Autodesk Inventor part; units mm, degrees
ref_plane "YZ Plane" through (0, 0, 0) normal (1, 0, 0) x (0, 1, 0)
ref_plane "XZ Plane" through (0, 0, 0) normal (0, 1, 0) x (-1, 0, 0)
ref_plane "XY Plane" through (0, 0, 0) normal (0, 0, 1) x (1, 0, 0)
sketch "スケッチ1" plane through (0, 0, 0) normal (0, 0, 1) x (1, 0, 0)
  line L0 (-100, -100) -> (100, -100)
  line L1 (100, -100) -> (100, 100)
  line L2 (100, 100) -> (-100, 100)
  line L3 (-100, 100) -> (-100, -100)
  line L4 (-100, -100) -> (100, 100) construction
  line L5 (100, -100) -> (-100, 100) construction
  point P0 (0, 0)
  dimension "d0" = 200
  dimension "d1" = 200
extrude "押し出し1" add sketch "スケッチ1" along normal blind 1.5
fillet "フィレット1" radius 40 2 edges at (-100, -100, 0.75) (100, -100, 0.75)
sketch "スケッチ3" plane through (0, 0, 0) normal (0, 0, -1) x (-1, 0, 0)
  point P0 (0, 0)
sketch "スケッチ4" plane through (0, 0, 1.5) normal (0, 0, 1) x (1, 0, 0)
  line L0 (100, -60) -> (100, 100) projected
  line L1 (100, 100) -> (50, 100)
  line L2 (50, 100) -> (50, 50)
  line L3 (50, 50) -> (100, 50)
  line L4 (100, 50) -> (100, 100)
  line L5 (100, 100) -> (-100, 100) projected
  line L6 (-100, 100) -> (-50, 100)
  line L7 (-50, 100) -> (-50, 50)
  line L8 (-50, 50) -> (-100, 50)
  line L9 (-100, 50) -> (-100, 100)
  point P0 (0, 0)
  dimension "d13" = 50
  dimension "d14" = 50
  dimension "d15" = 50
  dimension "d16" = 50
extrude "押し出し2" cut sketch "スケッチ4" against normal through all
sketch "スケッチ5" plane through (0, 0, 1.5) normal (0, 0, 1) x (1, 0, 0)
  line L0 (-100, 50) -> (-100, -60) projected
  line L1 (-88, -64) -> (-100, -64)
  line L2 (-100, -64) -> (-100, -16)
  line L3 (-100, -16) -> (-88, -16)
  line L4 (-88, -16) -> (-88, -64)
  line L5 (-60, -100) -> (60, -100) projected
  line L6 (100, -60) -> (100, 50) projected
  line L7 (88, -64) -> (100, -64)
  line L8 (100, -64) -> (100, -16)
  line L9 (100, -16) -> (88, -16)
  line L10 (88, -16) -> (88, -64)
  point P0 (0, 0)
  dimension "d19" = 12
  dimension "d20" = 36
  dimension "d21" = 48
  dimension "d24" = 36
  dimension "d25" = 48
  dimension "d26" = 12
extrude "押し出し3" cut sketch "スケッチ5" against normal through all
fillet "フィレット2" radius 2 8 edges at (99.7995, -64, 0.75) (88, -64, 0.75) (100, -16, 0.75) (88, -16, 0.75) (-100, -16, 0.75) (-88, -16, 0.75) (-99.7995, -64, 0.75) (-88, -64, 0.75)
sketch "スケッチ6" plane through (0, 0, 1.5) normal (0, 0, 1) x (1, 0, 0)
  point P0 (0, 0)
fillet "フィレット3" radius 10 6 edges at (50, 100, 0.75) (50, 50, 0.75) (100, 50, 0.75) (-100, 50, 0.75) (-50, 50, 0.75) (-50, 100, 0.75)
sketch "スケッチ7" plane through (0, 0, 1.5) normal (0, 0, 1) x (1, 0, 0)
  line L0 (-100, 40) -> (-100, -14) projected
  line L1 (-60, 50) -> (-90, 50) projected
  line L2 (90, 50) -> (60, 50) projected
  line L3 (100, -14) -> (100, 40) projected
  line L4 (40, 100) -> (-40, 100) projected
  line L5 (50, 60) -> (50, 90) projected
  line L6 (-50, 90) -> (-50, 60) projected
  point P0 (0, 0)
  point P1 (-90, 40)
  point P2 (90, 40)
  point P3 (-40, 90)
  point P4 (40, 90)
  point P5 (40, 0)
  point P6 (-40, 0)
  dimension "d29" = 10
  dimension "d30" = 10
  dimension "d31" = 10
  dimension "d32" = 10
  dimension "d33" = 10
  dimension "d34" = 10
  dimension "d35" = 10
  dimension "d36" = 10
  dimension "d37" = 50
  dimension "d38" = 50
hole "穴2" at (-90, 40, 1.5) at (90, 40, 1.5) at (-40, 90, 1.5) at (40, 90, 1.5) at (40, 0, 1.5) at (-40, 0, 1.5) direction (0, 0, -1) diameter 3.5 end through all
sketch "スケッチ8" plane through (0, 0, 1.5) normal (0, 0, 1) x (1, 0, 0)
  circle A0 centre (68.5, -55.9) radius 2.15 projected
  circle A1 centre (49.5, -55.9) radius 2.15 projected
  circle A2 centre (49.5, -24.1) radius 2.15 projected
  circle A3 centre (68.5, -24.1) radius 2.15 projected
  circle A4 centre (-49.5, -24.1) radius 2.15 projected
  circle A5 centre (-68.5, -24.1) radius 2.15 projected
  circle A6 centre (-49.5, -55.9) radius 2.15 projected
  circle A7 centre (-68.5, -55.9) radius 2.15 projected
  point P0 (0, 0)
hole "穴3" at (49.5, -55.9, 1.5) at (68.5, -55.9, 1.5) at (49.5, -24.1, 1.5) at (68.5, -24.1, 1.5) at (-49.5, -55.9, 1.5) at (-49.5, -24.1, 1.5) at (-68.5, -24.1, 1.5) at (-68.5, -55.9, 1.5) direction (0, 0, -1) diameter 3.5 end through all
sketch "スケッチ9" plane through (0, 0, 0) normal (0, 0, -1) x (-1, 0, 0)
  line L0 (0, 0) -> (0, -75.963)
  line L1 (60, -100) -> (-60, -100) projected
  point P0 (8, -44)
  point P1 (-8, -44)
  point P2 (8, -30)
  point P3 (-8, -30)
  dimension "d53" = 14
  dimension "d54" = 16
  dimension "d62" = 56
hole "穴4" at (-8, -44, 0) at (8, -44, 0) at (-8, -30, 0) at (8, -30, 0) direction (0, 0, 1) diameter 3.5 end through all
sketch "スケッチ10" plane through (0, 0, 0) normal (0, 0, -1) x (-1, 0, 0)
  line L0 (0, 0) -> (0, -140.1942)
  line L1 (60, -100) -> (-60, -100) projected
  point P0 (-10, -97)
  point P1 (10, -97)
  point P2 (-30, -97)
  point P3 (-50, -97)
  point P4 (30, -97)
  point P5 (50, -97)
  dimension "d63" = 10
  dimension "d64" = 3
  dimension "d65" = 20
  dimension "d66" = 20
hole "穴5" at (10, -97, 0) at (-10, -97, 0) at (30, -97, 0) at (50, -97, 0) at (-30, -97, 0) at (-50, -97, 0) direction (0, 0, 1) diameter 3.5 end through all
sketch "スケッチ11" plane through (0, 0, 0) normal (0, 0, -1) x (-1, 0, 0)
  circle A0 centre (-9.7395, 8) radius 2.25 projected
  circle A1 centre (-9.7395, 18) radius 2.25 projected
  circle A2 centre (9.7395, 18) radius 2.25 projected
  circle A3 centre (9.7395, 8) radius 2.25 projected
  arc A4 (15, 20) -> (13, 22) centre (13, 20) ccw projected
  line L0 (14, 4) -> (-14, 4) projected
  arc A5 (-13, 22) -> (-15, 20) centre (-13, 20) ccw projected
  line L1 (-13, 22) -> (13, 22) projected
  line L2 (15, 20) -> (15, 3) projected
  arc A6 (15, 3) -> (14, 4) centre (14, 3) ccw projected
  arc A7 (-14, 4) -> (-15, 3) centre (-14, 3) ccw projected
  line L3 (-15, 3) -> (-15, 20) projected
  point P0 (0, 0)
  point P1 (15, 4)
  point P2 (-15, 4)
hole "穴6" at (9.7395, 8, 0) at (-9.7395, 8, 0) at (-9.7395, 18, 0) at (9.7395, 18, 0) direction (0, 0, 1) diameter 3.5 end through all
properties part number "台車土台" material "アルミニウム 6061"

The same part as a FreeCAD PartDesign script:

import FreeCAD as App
import Part
import Sketcher
Q = App.Units.Quantity


def edges_at(feature, points):
    """Names of the edges that pass closest to the given points."""
    edges = feature.Shape.Edges
    near = lambda p: min(range(len(edges)), key=lambda i: edges[i].distToShape(Part.Vertex(*p))[0])
    return sorted({f"Edge{near(p) + 1}" for p in points})

doc = App.newDocument("Part")
params = doc.addObject("Spreadsheet::Sheet", "Params")
for row, (alias, value) in enumerate([
    ("sketch1_width", "200 mm"),
    ("pad1_length", "1.5 mm"),
    ("fillet_radius", "40 mm"),
    ("sketch2_width", "50 mm"),
    ("sketch3_width", "12 mm"),
    ("sketch3_height", "48 mm"),
    ("fillet2_radius", "2 mm"),
    ("fillet3_radius", "10 mm"),
    ("sketch4_diameter", "3.5 mm"),
    ("hole_diameter", "3.5 mm"),
    ("sketch5_diameter", "3.5 mm"),
    ("hole2_diameter", "3.5 mm"),
    ("sketch6_diameter", "3.5 mm"),
    ("hole3_diameter", "3.5 mm"),
    ("sketch7_diameter", "3.5 mm"),
    ("hole4_diameter", "3.5 mm"),
    ("sketch8_diameter", "3.5 mm"),
    ("hole5_diameter", "3.5 mm"),
], start=1):
    params.set(f"A{row}", alias)
    params.set(f"B{row}", "=" + value)
    params.setAlias(f"B{row}", alias)

body = doc.addObject("PartDesign::Body", "Body")

# Sketch on XY plane
sketch1 = body.newObject("Sketcher::SketchObject", "Sketch")
sketch1.AttachmentSupport = (doc.getObject("XY_Plane"), [""])
sketch1.MapMode = "FlatFace"
sketch1.addGeometry(Part.LineSegment(App.Vector(-100, 100, 0), App.Vector(-100, -100, 0)), False)
sketch1.addGeometry(Part.LineSegment(App.Vector(-100, -100, 0), App.Vector(100, -100, 0)), False)
sketch1.addGeometry(Part.LineSegment(App.Vector(100, -100, 0), App.Vector(100, 100, 0)), False)
sketch1.addGeometry(Part.LineSegment(App.Vector(100, 100, 0), App.Vector(-100, 100, 0)), False)
sketch1.addConstraint(Sketcher.Constraint("Coincident", 0, 2, 1, 1))
sketch1.addConstraint(Sketcher.Constraint("Coincident", 1, 2, 2, 1))
sketch1.addConstraint(Sketcher.Constraint("Coincident", 2, 2, 3, 1))
sketch1.addConstraint(Sketcher.Constraint("Coincident", 3, 2, 0, 1))
sketch1.addConstraint(Sketcher.Constraint("Vertical", 0))
sketch1.addConstraint(Sketcher.Constraint("Horizontal", 1))
sketch1.addConstraint(Sketcher.Constraint("Vertical", 2))
sketch1.addConstraint(Sketcher.Constraint("Horizontal", 3))
sketch1.addConstraint(Sketcher.Constraint("Symmetric", 0, 2, 2, 2, -1, 1))
sketch1.addConstraint(Sketcher.Constraint("Equal", 3, 0))
sketch1.addConstraint(Sketcher.Constraint("DistanceX", 1, 1, 1, 2, Q("200 mm")))
sketch1.setExpression("Constraints[10]", "Params.sketch1_width")
pad1 = body.newObject("PartDesign::Pad", "Pad")
pad1.Profile = sketch1
pad1.setExpression("Length", "Params.pad1_length")
doc.recompute()

fillet = body.newObject("PartDesign::Fillet", "Fillet")
fillet.Base = (pad1, edges_at(pad1, [(-100, -100, 0.75), (100, -100, 0.75)]))
fillet.setExpression("Radius", "Params.fillet_radius")

# Sketch on XY plane
sketch2 = body.newObject("Sketcher::SketchObject", "Sketch001")
sketch2.AttachmentSupport = (doc.getObject("XY_Plane"), [""])
sketch2.MapMode = "FlatFace"
sketch2.AttachmentOffset = App.Placement(App.Vector(0, 0, 1.5), App.Rotation())
sketch2.addGeometry(Part.LineSegment(App.Vector(50, 50, 0), App.Vector(100, 50, 0)), False)
sketch2.addGeometry(Part.LineSegment(App.Vector(100, 50, 0), App.Vector(100, 100, 0)), False)
sketch2.addGeometry(Part.LineSegment(App.Vector(100, 100, 0), App.Vector(50, 100, 0)), False)
sketch2.addGeometry(Part.LineSegment(App.Vector(50, 100, 0), App.Vector(50, 50, 0)), False)
sketch2.addGeometry(Part.LineSegment(App.Vector(-50, 50, 0), App.Vector(-50, 100, 0)), False)
sketch2.addGeometry(Part.LineSegment(App.Vector(-50, 100, 0), App.Vector(-100, 100, 0)), False)
sketch2.addGeometry(Part.LineSegment(App.Vector(-100, 100, 0), App.Vector(-100, 50, 0)), False)
sketch2.addGeometry(Part.LineSegment(App.Vector(-100, 50, 0), App.Vector(-50, 50, 0)), False)
sketch2.addConstraint(Sketcher.Constraint("Coincident", 0, 2, 1, 1))
sketch2.addConstraint(Sketcher.Constraint("Coincident", 1, 2, 2, 1))
sketch2.addConstraint(Sketcher.Constraint("Coincident", 2, 2, 3, 1))
sketch2.addConstraint(Sketcher.Constraint("Coincident", 3, 2, 0, 1))
sketch2.addConstraint(Sketcher.Constraint("Coincident", 4, 2, 5, 1))
sketch2.addConstraint(Sketcher.Constraint("Coincident", 5, 2, 6, 1))
sketch2.addConstraint(Sketcher.Constraint("Coincident", 6, 2, 7, 1))
sketch2.addConstraint(Sketcher.Constraint("Coincident", 7, 2, 4, 1))
sketch2.addConstraint(Sketcher.Constraint("Horizontal", 0))
sketch2.addConstraint(Sketcher.Constraint("Vertical", 1))
sketch2.addConstraint(Sketcher.Constraint("Horizontal", 2))
sketch2.addConstraint(Sketcher.Constraint("Vertical", 3))
sketch2.addConstraint(Sketcher.Constraint("Vertical", 4))
sketch2.addConstraint(Sketcher.Constraint("Horizontal", 5))
sketch2.addConstraint(Sketcher.Constraint("Vertical", 6))
sketch2.addConstraint(Sketcher.Constraint("Horizontal", 7))
sketch2.addConstraint(Sketcher.Constraint("Symmetric", 2, 2, 4, 2, -2))
sketch2.addConstraint(Sketcher.Constraint("Symmetric", 0, 2, 6, 2, -2))
sketch2.addConstraint(Sketcher.Constraint("Equal", 7, 1))
sketch2.addConstraint(Sketcher.Constraint("DistanceX", 0, 1, 0, 2, Q("50 mm")))
sketch2.addConstraint(Sketcher.Constraint("DistanceY", -1, 1, 0, 2, Q("50 mm")))
sketch2.addConstraint(Sketcher.Constraint("DistanceX", -1, 1, 2, 2, Q("50 mm")))
sketch2.setExpression("Constraints[19]", "Params.sketch2_width")
pocket1 = body.newObject("PartDesign::Pocket", "Pocket")
pocket1.Profile = sketch2
pocket1.Type = "ThroughAll"

# Sketch on XY plane
sketch3 = body.newObject("Sketcher::SketchObject", "Sketch002")
sketch3.AttachmentSupport = (doc.getObject("XY_Plane"), [""])
sketch3.MapMode = "FlatFace"
sketch3.AttachmentOffset = App.Placement(App.Vector(0, 0, 1.5), App.Rotation())
sketch3.addGeometry(Part.LineSegment(App.Vector(-88, -16, 0), App.Vector(-100, -16, 0)), False)
sketch3.addGeometry(Part.LineSegment(App.Vector(-100, -16, 0), App.Vector(-100, -64, 0)), False)
sketch3.addGeometry(Part.LineSegment(App.Vector(-100, -64, 0), App.Vector(-88, -64, 0)), False)
sketch3.addGeometry(Part.LineSegment(App.Vector(-88, -64, 0), App.Vector(-88, -16, 0)), False)
sketch3.addGeometry(Part.LineSegment(App.Vector(100, -64, 0), App.Vector(100, -16, 0)), False)
sketch3.addGeometry(Part.LineSegment(App.Vector(100, -16, 0), App.Vector(88, -16, 0)), False)
sketch3.addGeometry(Part.LineSegment(App.Vector(88, -16, 0), App.Vector(88, -64, 0)), False)
sketch3.addGeometry(Part.LineSegment(App.Vector(88, -64, 0), App.Vector(100, -64, 0)), False)
sketch3.addConstraint(Sketcher.Constraint("Coincident", 0, 2, 1, 1))
sketch3.addConstraint(Sketcher.Constraint("Coincident", 1, 2, 2, 1))
sketch3.addConstraint(Sketcher.Constraint("Coincident", 2, 2, 3, 1))
sketch3.addConstraint(Sketcher.Constraint("Coincident", 3, 2, 0, 1))
sketch3.addConstraint(Sketcher.Constraint("Coincident", 4, 2, 5, 1))
sketch3.addConstraint(Sketcher.Constraint("Coincident", 5, 2, 6, 1))
sketch3.addConstraint(Sketcher.Constraint("Coincident", 6, 2, 7, 1))
sketch3.addConstraint(Sketcher.Constraint("Coincident", 7, 2, 4, 1))
sketch3.addConstraint(Sketcher.Constraint("Horizontal", 0))
sketch3.addConstraint(Sketcher.Constraint("Vertical", 1))
sketch3.addConstraint(Sketcher.Constraint("Horizontal", 2))
sketch3.addConstraint(Sketcher.Constraint("Vertical", 3))
sketch3.addConstraint(Sketcher.Constraint("Vertical", 4))
sketch3.addConstraint(Sketcher.Constraint("Horizontal", 5))
sketch3.addConstraint(Sketcher.Constraint("Vertical", 6))
sketch3.addConstraint(Sketcher.Constraint("Horizontal", 7))
sketch3.addConstraint(Sketcher.Constraint("Symmetric", 0, 2, 4, 2, -2))
sketch3.addConstraint(Sketcher.Constraint("Symmetric", 2, 2, 6, 2, -2))
sketch3.addConstraint(Sketcher.Constraint("DistanceX", 0, 2, 0, 1, Q("12 mm")))
sketch3.addConstraint(Sketcher.Constraint("DistanceY", 1, 2, 1, 1, Q("48 mm")))
sketch3.addConstraint(Sketcher.Constraint("DistanceX", 0, 2, -1, 1, Q("100 mm")))
sketch3.addConstraint(Sketcher.Constraint("DistanceY", 0, 2, -1, 1, Q("16 mm")))
sketch3.setExpression("Constraints[18]", "Params.sketch3_width")
sketch3.setExpression("Constraints[19]", "Params.sketch3_height")
pocket2 = body.newObject("PartDesign::Pocket", "Pocket001")
pocket2.Profile = sketch3
pocket2.Type = "ThroughAll"
doc.recompute()

fillet2 = body.newObject("PartDesign::Fillet", "Fillet001")
fillet2.Base = (pocket2, edges_at(pocket2, [
    (99.799, -64, 0.75),
    (88, -64, 0.75),
    (100, -16, 0.75),
    (88, -16, 0.75),
    (-100, -16, 0.75),
    (-88, -16, 0.75),
    (-99.799, -64, 0.75),
    (-88, -64, 0.75),
]))
fillet2.setExpression("Radius", "Params.fillet2_radius")
doc.recompute()

fillet3 = body.newObject("PartDesign::Fillet", "Fillet002")
fillet3.Base = (fillet2, edges_at(fillet2, [
    (50, 100, 0.75),
    (50, 50, 0.75),
    (100, 50, 0.75),
    (-100, 50, 0.75),
    (-50, 50, 0.75),
    (-50, 100, 0.75),
]))
fillet3.setExpression("Radius", "Params.fillet3_radius")

# Sketch on XY plane
sketch4 = body.newObject("Sketcher::SketchObject", "Sketch003")
sketch4.AttachmentSupport = (doc.getObject("XY_Plane"), [""])
sketch4.MapMode = "FlatFace"
sketch4.AttachmentOffset = App.Placement(App.Vector(0, 0, 1.5), App.Rotation())
sketch4.addGeometry(Part.Circle(App.Vector(-90, 40, 0), App.Vector(0, 0, 1), 1.8), False)
sketch4.addGeometry(Part.Circle(App.Vector(90, 40, 0), App.Vector(0, 0, 1), 1.8), False)
sketch4.addGeometry(Part.Circle(App.Vector(-40, 90, 0), App.Vector(0, 0, 1), 1.8), False)
sketch4.addGeometry(Part.Circle(App.Vector(40, 90, 0), App.Vector(0, 0, 1), 1.8), False)
sketch4.addGeometry(Part.Circle(App.Vector(40, 0, 0), App.Vector(0, 0, 1), 1.8), False)
sketch4.addGeometry(Part.Circle(App.Vector(-40, 0, 0), App.Vector(0, 0, 1), 1.8), False)
sketch4.addConstraint(Sketcher.Constraint("Equal", 0, 1))
sketch4.addConstraint(Sketcher.Constraint("Equal", 1, 2))
sketch4.addConstraint(Sketcher.Constraint("Equal", 2, 3))
sketch4.addConstraint(Sketcher.Constraint("Equal", 3, 4))
sketch4.addConstraint(Sketcher.Constraint("Equal", 4, 5))
sketch4.addConstraint(Sketcher.Constraint("Symmetric", 4, 3, 5, 3, -1, 1))
sketch4.addConstraint(Sketcher.Constraint("Symmetric", 0, 3, 1, 3, -2))
sketch4.addConstraint(Sketcher.Constraint("Symmetric", 2, 3, 3, 3, -2))
sketch4.addConstraint(Sketcher.Constraint("PointOnObject", 4, 3, -1))
sketch4.addConstraint(Sketcher.Constraint("Vertical", 3, 3, 4, 3))
sketch4.addConstraint(Sketcher.Constraint("Diameter", 0, Q("3.5 mm")))
sketch4.addConstraint(Sketcher.Constraint("DistanceX", 0, 3, -1, 1, Q("90 mm")))
sketch4.addConstraint(Sketcher.Constraint("DistanceY", -1, 1, 0, 3, Q("40 mm")))
sketch4.addConstraint(Sketcher.Constraint("DistanceX", 2, 3, -1, 1, Q("40 mm")))
sketch4.addConstraint(Sketcher.Constraint("DistanceY", -1, 1, 2, 3, Q("90 mm")))
sketch4.setExpression("Constraints[10]", "Params.sketch4_diameter")
doc.recompute()
hole = body.newObject("PartDesign::Hole", "Hole")
hole.Profile = sketch4
hole.ThreadType = "None"
hole.setExpression("Diameter", "Params.hole_diameter")
hole.DepthType = "ThroughAll"

# Sketch on XY plane
sketch5 = body.newObject("Sketcher::SketchObject", "Sketch004")
sketch5.AttachmentSupport = (doc.getObject("XY_Plane"), [""])
sketch5.MapMode = "FlatFace"
sketch5.AttachmentOffset = App.Placement(App.Vector(0, 0, 1.5), App.Rotation())
sketch5.addGeometry(Part.Circle(App.Vector(49.5, -55.9, 0), App.Vector(0, 0, 1), 1.8), False)
sketch5.addGeometry(Part.Circle(App.Vector(68.5, -55.9, 0), App.Vector(0, 0, 1), 1.8), False)
sketch5.addGeometry(Part.Circle(App.Vector(49.5, -24.1, 0), App.Vector(0, 0, 1), 1.8), False)
sketch5.addGeometry(Part.Circle(App.Vector(68.5, -24.1, 0), App.Vector(0, 0, 1), 1.8), False)
sketch5.addGeometry(Part.Circle(App.Vector(-49.5, -55.9, 0), App.Vector(0, 0, 1), 1.8), False)
sketch5.addGeometry(Part.Circle(App.Vector(-49.5, -24.1, 0), App.Vector(0, 0, 1), 1.8), False)
sketch5.addGeometry(Part.Circle(App.Vector(-68.5, -24.1, 0), App.Vector(0, 0, 1), 1.8), False)
sketch5.addGeometry(Part.Circle(App.Vector(-68.5, -55.9, 0), App.Vector(0, 0, 1), 1.8), False)
sketch5.addConstraint(Sketcher.Constraint("Equal", 0, 1))
sketch5.addConstraint(Sketcher.Constraint("Equal", 1, 2))
sketch5.addConstraint(Sketcher.Constraint("Equal", 2, 3))
sketch5.addConstraint(Sketcher.Constraint("Equal", 3, 4))
sketch5.addConstraint(Sketcher.Constraint("Equal", 4, 5))
sketch5.addConstraint(Sketcher.Constraint("Equal", 5, 6))
sketch5.addConstraint(Sketcher.Constraint("Equal", 6, 7))
sketch5.addConstraint(Sketcher.Constraint("Symmetric", 0, 3, 4, 3, -2))
sketch5.addConstraint(Sketcher.Constraint("Symmetric", 2, 3, 5, 3, -2))
sketch5.addConstraint(Sketcher.Constraint("Symmetric", 3, 3, 6, 3, -2))
sketch5.addConstraint(Sketcher.Constraint("Symmetric", 1, 3, 7, 3, -2))
sketch5.addConstraint(Sketcher.Constraint("Horizontal", 0, 3, 1, 3))
sketch5.addConstraint(Sketcher.Constraint("Horizontal", 2, 3, 3, 3))
sketch5.addConstraint(Sketcher.Constraint("Vertical", 0, 3, 2, 3))
sketch5.addConstraint(Sketcher.Constraint("Vertical", 1, 3, 3, 3))
sketch5.addConstraint(Sketcher.Constraint("Diameter", 0, Q("3.5 mm")))
sketch5.addConstraint(Sketcher.Constraint("DistanceX", 0, 3, 1, 3, Q("19 mm")))
sketch5.addConstraint(Sketcher.Constraint("DistanceX", 4, 3, 0, 3, Q("99 mm")))
sketch5.addConstraint(Sketcher.Constraint("DistanceY", 0, 3, -1, 1, Q("55.9 mm")))
sketch5.addConstraint(Sketcher.Constraint("DistanceY", 2, 3, -1, 1, Q("24.1 mm")))
sketch5.setExpression("Constraints[15]", "Params.sketch5_diameter")
doc.recompute()
hole2 = body.newObject("PartDesign::Hole", "Hole001")
hole2.Profile = sketch5
hole2.ThreadType = "None"
hole2.setExpression("Diameter", "Params.hole2_diameter")
hole2.DepthType = "ThroughAll"

# Sketch on XY plane
sketch6 = body.newObject("Sketcher::SketchObject", "Sketch005")
sketch6.AttachmentSupport = (doc.getObject("XY_Plane"), [""])
sketch6.MapMode = "FlatFace"
sketch6.addGeometry(Part.Circle(App.Vector(-8, -44, 0), App.Vector(0, 0, 1), 1.8), False)
sketch6.addGeometry(Part.Circle(App.Vector(8, -44, 0), App.Vector(0, 0, 1), 1.8), False)
sketch6.addGeometry(Part.Circle(App.Vector(-8, -30, 0), App.Vector(0, 0, 1), 1.8), False)
sketch6.addGeometry(Part.Circle(App.Vector(8, -30, 0), App.Vector(0, 0, 1), 1.8), False)
sketch6.addConstraint(Sketcher.Constraint("Equal", 0, 1))
sketch6.addConstraint(Sketcher.Constraint("Equal", 1, 2))
sketch6.addConstraint(Sketcher.Constraint("Equal", 2, 3))
sketch6.addConstraint(Sketcher.Constraint("Symmetric", 0, 3, 1, 3, -2))
sketch6.addConstraint(Sketcher.Constraint("Symmetric", 2, 3, 3, 3, -2))
sketch6.addConstraint(Sketcher.Constraint("Vertical", 0, 3, 2, 3))
sketch6.addConstraint(Sketcher.Constraint("Diameter", 0, Q("3.5 mm")))
sketch6.addConstraint(Sketcher.Constraint("DistanceX", 0, 3, -1, 1, Q("8 mm")))
sketch6.addConstraint(Sketcher.Constraint("DistanceY", 0, 3, -1, 1, Q("44 mm")))
sketch6.addConstraint(Sketcher.Constraint("DistanceY", 2, 3, -1, 1, Q("30 mm")))
sketch6.setExpression("Constraints[6]", "Params.sketch6_diameter")
doc.recompute()
hole3 = body.newObject("PartDesign::Hole", "Hole002")
hole3.Profile = sketch6
hole3.ThreadType = "None"
hole3.setExpression("Diameter", "Params.hole3_diameter")
hole3.DepthType = "ThroughAll"
hole3.Reversed = True

# Sketch on XY plane
sketch7 = body.newObject("Sketcher::SketchObject", "Sketch006")
sketch7.AttachmentSupport = (doc.getObject("XY_Plane"), [""])
sketch7.MapMode = "FlatFace"
sketch7.addGeometry(Part.Circle(App.Vector(10, -97, 0), App.Vector(0, 0, 1), 1.8), False)
sketch7.addGeometry(Part.Circle(App.Vector(-10, -97, 0), App.Vector(0, 0, 1), 1.8), False)
sketch7.addGeometry(Part.Circle(App.Vector(30, -97, 0), App.Vector(0, 0, 1), 1.8), False)
sketch7.addGeometry(Part.Circle(App.Vector(50, -97, 0), App.Vector(0, 0, 1), 1.8), False)
sketch7.addGeometry(Part.Circle(App.Vector(-30, -97, 0), App.Vector(0, 0, 1), 1.8), False)
sketch7.addGeometry(Part.Circle(App.Vector(-50, -97, 0), App.Vector(0, 0, 1), 1.8), False)
sketch7.addConstraint(Sketcher.Constraint("Equal", 0, 1))
sketch7.addConstraint(Sketcher.Constraint("Equal", 1, 2))
sketch7.addConstraint(Sketcher.Constraint("Equal", 2, 3))
sketch7.addConstraint(Sketcher.Constraint("Equal", 3, 4))
sketch7.addConstraint(Sketcher.Constraint("Equal", 4, 5))
sketch7.addConstraint(Sketcher.Constraint("Symmetric", 0, 3, 1, 3, -2))
sketch7.addConstraint(Sketcher.Constraint("Symmetric", 2, 3, 4, 3, -2))
sketch7.addConstraint(Sketcher.Constraint("Symmetric", 3, 3, 5, 3, -2))
sketch7.addConstraint(Sketcher.Constraint("Horizontal", 1, 3, 2, 3))
sketch7.addConstraint(Sketcher.Constraint("Horizontal", 2, 3, 3, 3))
sketch7.addConstraint(Sketcher.Constraint("Diameter", 0, Q("3.5 mm")))
sketch7.addConstraint(Sketcher.Constraint("DistanceX", -1, 1, 0, 3, Q("10 mm")))
sketch7.addConstraint(Sketcher.Constraint("DistanceY", 0, 3, -1, 1, Q("97 mm")))
sketch7.addConstraint(Sketcher.Constraint("DistanceX", -1, 1, 2, 3, Q("30 mm")))
sketch7.addConstraint(Sketcher.Constraint("DistanceX", -1, 1, 3, 3, Q("50 mm")))
sketch7.setExpression("Constraints[10]", "Params.sketch7_diameter")
doc.recompute()
hole4 = body.newObject("PartDesign::Hole", "Hole003")
hole4.Profile = sketch7
hole4.ThreadType = "None"
hole4.setExpression("Diameter", "Params.hole4_diameter")
hole4.DepthType = "ThroughAll"
hole4.Reversed = True

# Sketch on XY plane
sketch8 = body.newObject("Sketcher::SketchObject", "Sketch007")
sketch8.AttachmentSupport = (doc.getObject("XY_Plane"), [""])
sketch8.MapMode = "FlatFace"
sketch8.addGeometry(Part.Circle(App.Vector(9.7, 8, 0), App.Vector(0, 0, 1), 1.8), False)
sketch8.addGeometry(Part.Circle(App.Vector(-9.7, 8, 0), App.Vector(0, 0, 1), 1.8), False)
sketch8.addGeometry(Part.Circle(App.Vector(-9.7, 18, 0), App.Vector(0, 0, 1), 1.8), False)
sketch8.addGeometry(Part.Circle(App.Vector(9.7, 18, 0), App.Vector(0, 0, 1), 1.8), False)
sketch8.addConstraint(Sketcher.Constraint("Equal", 0, 1))
sketch8.addConstraint(Sketcher.Constraint("Equal", 1, 2))
sketch8.addConstraint(Sketcher.Constraint("Equal", 2, 3))
sketch8.addConstraint(Sketcher.Constraint("Symmetric", 0, 3, 1, 3, -2))
sketch8.addConstraint(Sketcher.Constraint("Symmetric", 2, 3, 3, 3, -2))
sketch8.addConstraint(Sketcher.Constraint("Vertical", 1, 3, 2, 3))
sketch8.addConstraint(Sketcher.Constraint("Diameter", 0, Q("3.5 mm")))
sketch8.addConstraint(Sketcher.Constraint("DistanceY", -1, 1, 0, 3, Q("8 mm")))
sketch8.addConstraint(Sketcher.Constraint("DistanceY", -1, 1, 2, 3, Q("18 mm")))
sketch8.addConstraint(Sketcher.Constraint("DistanceX", 1, 3, 0, 3, Q("19.479 mm")))
sketch8.setExpression("Constraints[6]", "Params.sketch8_diameter")
doc.recompute()
hole5 = body.newObject("PartDesign::Hole", "Hole004")
hole5.Profile = sketch8
hole5.ThreadType = "None"
hole5.setExpression("Diameter", "Params.hole5_diameter")
hole5.DepthType = "ThroughAll"
hole5.Reversed = True

doc.recompute()
